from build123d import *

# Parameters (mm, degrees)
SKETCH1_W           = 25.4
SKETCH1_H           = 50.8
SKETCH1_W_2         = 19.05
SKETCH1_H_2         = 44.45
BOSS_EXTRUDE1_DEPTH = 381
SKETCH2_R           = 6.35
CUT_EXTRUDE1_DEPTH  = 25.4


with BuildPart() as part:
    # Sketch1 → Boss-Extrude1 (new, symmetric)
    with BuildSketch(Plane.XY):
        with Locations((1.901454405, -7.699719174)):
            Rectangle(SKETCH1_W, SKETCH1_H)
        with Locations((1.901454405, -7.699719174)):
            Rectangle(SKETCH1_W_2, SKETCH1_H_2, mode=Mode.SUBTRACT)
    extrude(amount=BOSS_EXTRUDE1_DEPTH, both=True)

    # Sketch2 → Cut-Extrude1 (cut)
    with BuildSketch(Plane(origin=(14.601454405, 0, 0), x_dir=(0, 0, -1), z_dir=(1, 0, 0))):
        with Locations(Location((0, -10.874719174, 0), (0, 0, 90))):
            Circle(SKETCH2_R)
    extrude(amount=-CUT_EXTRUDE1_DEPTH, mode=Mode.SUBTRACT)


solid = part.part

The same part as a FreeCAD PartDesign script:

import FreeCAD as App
import Part
import Sketcher
Q = App.Units.Quantity


def add_polygon(sketch, points):
    """Adds a closed chain of lines whose ends are joined by coincident constraints."""
    first, n = sketch.GeometryCount, len(points)
    for a, b in zip(points, points[1:] + points[:1]):
        sketch.addGeometry(Part.LineSegment(App.Vector(*a, 0), App.Vector(*b, 0)), False)
    for i in range(n):
        sketch.addConstraint(Sketcher.Constraint("Coincident", first + i, 2, first + (i + 1) % n, 1))

doc = App.newDocument("Part")
body = doc.addObject("PartDesign::Body", "Body")

# Sketch on XY plane
sketch1 = body.newObject("Sketcher::SketchObject", "Sketch")
sketch1.AttachmentSupport = (doc.getObject("XY_Plane"), [""])
sketch1.MapMode = "FlatFace"
add_polygon(sketch1, [(-11, 18), (-11, -33), (15, -33), (15, 18)])  # lines 0-3
add_polygon(sketch1, [(11, -30), (-8, -30), (-8, 15), (11, 15)])  # lines 4-7
sketch1.addConstraint(Sketcher.Constraint("Vertical", 0))
sketch1.addConstraint(Sketcher.Constraint("Horizontal", 1))
sketch1.addConstraint(Sketcher.Constraint("Vertical", 2))
sketch1.addConstraint(Sketcher.Constraint("Horizontal", 3))
sketch1.addConstraint(Sketcher.Constraint("Horizontal", 4))
sketch1.addConstraint(Sketcher.Constraint("Vertical", 5))
sketch1.addConstraint(Sketcher.Constraint("Horizontal", 6))
sketch1.addConstraint(Sketcher.Constraint("Vertical", 7))
sketch1.addConstraint(Sketcher.Constraint("DistanceX", 1, 1, 1, 2, Q("1 in")))
sketch1.addConstraint(Sketcher.Constraint("DistanceY", 0, 2, 0, 1, Q("2 in")))
sketch1.addConstraint(Sketcher.Constraint("DistanceX", 4, 2, 4, 1, Q("0.75 in")))
sketch1.addConstraint(Sketcher.Constraint("DistanceY", 5, 1, 5, 2, Q("1.75 in")))
sketch1.addConstraint(Sketcher.Constraint("DistanceX", 0, 2, 4, 2, Q("0.125 in")))
sketch1.addConstraint(Sketcher.Constraint("DistanceY", 0, 2, 4, 2, Q("0.125 in")))
sketch1.addConstraint(Sketcher.Constraint("DistanceY", 0, 2, -1, 1, 33.099719))
sketch1.addConstraint(Sketcher.Constraint("DistanceX", 0, 2, -1, 1, 10.798546))
pad1 = body.newObject("PartDesign::Pad", "Pad")
pad1.Profile = sketch1
pad1.Length = Q("30 in")
pad1.Midplane = True

# Sketch on YZ plane
sketch2 = body.newObject("Sketcher::SketchObject", "Sketch001")
sketch2.AttachmentSupport = (doc.getObject("YZ_Plane"), [""])
sketch2.MapMode = "FlatFace"
sketch2.AttachmentOffset = App.Placement(App.Vector(0, 0, 14.601454), App.Rotation())
sketch2.addGeometry(Part.Circle(App.Vector(-11, 0, 0), App.Vector(0, 0, 1), 6), False)
sketch2.addConstraint(Sketcher.Constraint("PointOnObject", 0, 3, -1))
sketch2.addConstraint(Sketcher.Constraint("Diameter", 0, Q("0.5 in")))
sketch2.addConstraint(Sketcher.Constraint("DistanceX", 0, 3, -1, 1, 10.874719))
pocket1 = body.newObject("PartDesign::Pocket", "Pocket")
pocket1.Profile = sketch2
pocket1.Length = Q("1 in")

doc.recompute()
